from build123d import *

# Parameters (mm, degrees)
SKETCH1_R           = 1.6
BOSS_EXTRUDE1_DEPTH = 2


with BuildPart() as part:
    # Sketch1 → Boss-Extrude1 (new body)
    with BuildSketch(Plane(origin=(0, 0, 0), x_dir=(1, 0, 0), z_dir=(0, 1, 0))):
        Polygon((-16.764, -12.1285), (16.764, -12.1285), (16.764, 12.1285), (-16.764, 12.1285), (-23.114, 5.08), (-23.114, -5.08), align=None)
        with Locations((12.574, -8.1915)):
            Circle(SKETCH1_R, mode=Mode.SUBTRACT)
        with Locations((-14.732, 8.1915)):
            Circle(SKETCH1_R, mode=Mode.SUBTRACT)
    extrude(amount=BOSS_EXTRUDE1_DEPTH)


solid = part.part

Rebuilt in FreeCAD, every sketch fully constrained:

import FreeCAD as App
import Part
import Sketcher
from FreeCAD import Vector
Q = App.Units.Quantity


def add_polygon(sketch, points):
    """Adds a closed chain of lines whose ends are joined by coincident constraints."""
    first, n = sketch.GeometryCount, len(points)
    for a, b in zip(points, points[1:] + points[:1]):
        sketch.addGeometry(Part.LineSegment(App.Vector(*a, 0), App.Vector(*b, 0)), False)
    for i in range(n):
        sketch.addConstraint(Sketcher.Constraint("Coincident", first + i, 2, first + (i + 1) % n, 1))

doc = App.newDocument("Part")
params = doc.addObject("Spreadsheet::Sheet", "Params")
for row, (alias, value) in enumerate([
    ("sketch1_height", "0.4 in"),
    ("sketch1_width", "1.32 in"),
    ("sketch1_height2", "0.955 in"),
    ("pad1_length", "2 mm"),
], start=1):
    params.set(f"A{row}", alias)
    params.set(f"B{row}", "=" + value)
    params.setAlias(f"B{row}", alias)

body = doc.addObject("PartDesign::Body", "Body")

sketch1 = body.newObject("Sketcher::SketchObject", "Sketch")
sketch1.AttachmentSupport = (doc.getObject("XZ_Plane"), [""])
sketch1.MapMode = "FlatFace"
add_polygon(sketch1, [(-16.764, 12.1285), (16.764, 12.1285), (16.764, -12.1285), (-16.764, -12.1285), (-23.114, -5.08), (-23.114, 5.08)])
sketch1.addGeometry(Part.Circle(Vector(12.574, 8.1915, 0), Vector(0, 0, 1), 1.6), False)
sketch1.addGeometry(Part.Circle(Vector(-14.732, -8.1915, 0), Vector(0, 0, 1), 1.6), False)
sketch1.addConstraint([
    Sketcher.Constraint("Horizontal", 0),
    Sketcher.Constraint("Vertical", 1),
    Sketcher.Constraint("Horizontal", 2),
    Sketcher.Constraint("Vertical", 4),
    Sketcher.Constraint("Equal", 6, 7),
    Sketcher.Constraint("Symmetric", 0, 2, 2, 2, -1, 1),
    Sketcher.Constraint("Vertical", 2, 2, 5, 2),
    Sketcher.Constraint("Equal", 3, 5),
    Sketcher.Constraint("DistanceY", 4, 1, 4, 2, Q("0.4 in")),
    Sketcher.Constraint("DistanceX", 0, 1, 0, 2, Q("1.32 in")),
    Sketcher.Constraint("DistanceY", 7, 3, 0, 2, Q("0.8 in")),
    Sketcher.Constraint("DistanceY", 1, 2, 6, 3, Q("0.8 in")),
    Sketcher.Constraint("Diameter", 6, 3.2),
    Sketcher.Constraint("DistanceY", 1, 2, 1, 1, Q("0.955 in")),
    Sketcher.Constraint("DistanceX", 7, 3, -1, 1, Q("0.58 in")),
    Sketcher.Constraint("DistanceX", 3, 2, -1, 1, Q("0.91 in")),
    Sketcher.Constraint("DistanceX", -1, 1, 6, 3, 12.574),
])
sketch1.setExpression("Constraints[14]", "Params.sketch1_height")
sketch1.setExpression("Constraints[15]", "Params.sketch1_width")
sketch1.setExpression("Constraints[19]", "Params.sketch1_height2")
pad1 = body.newObject("PartDesign::Pad", "Pad")
pad1.Profile = sketch1
pad1.setExpression("Length", "Params.pad1_length")
pad1.Reversed = True

doc.recompute()
